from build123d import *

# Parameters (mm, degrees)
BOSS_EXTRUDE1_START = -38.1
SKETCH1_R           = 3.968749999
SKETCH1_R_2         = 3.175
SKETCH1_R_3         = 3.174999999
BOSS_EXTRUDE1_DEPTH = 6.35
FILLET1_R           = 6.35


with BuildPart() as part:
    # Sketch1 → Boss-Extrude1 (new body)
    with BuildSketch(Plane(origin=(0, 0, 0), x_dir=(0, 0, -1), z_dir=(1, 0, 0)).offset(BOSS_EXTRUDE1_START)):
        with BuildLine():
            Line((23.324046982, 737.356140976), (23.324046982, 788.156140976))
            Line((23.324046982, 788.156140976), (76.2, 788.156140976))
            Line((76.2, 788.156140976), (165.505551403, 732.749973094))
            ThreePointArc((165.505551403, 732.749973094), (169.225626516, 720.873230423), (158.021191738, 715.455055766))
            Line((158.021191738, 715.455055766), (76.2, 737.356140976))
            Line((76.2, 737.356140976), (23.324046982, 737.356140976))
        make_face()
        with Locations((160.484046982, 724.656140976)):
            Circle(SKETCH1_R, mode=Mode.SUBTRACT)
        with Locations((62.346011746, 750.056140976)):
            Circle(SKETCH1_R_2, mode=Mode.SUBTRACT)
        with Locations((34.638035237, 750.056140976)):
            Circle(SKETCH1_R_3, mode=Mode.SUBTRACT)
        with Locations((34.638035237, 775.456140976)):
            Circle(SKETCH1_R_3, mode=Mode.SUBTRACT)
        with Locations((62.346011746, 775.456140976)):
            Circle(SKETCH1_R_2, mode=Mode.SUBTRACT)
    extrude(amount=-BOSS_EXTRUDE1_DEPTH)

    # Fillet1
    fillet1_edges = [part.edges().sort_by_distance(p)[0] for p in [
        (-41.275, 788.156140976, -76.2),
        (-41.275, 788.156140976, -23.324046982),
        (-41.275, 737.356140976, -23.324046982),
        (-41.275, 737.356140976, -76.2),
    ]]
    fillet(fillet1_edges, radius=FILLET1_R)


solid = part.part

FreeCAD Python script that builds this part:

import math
import FreeCAD as App
import Part
import Sketcher
Q = App.Units.Quantity


def edges_at(feature, points):
    """Names of the edges that pass closest to the given points."""
    edges = feature.Shape.Edges
    near = lambda p: min(range(len(edges)), key=lambda i: edges[i].distToShape(Part.Vertex(*p))[0])
    return sorted({f"Edge{near(p) + 1}" for p in points})

doc = App.newDocument("Part")
params = doc.addObject("Spreadsheet::Sheet", "Params")
for row, (alias, value) in enumerate([
    ("sketch1_diameter", "0.25 in"),
    ("sketch1_width", "2 in"),
    ("sketch1_diameter2", "0.3125 in"),
    ("sketch1_radius", "0.375 in"),
    ("pad1_length", "0.25 in"),
    ("fillet_radius", "0.25 in"),
], start=1):
    params.set(f"A{row}", alias)
    params.set(f"B{row}", "=" + value)
    params.setAlias(f"B{row}", alias)

body = doc.addObject("PartDesign::Body", "Body")

# Sketch on YZ plane
sketch1 = doc.addObject("Sketcher::SketchObject", "Sketch")
body.addObject(sketch1)
sketch1.AttachmentSupport = (doc.YZ_Plane, [""])
sketch1.MapMode = "FlatFace"
sketch1.AttachmentOffset = App.Placement(App.Vector(0, 0, -1.5 * 25.4), App.Rotation())
sketch1.addGeometry(Part.LineSegment(App.Vector(788.2, -23.3, 0), App.Vector(737.4, -23.3, 0)), False)
sketch1.addGeometry(Part.LineSegment(App.Vector(737.4, -23.3, 0), App.Vector(737.4, -76.2, 0)), False)
sketch1.addGeometry(Part.LineSegment(App.Vector(737.4, -76.2, 0), App.Vector(715.5, -158, 0)), False)
sketch1.addGeometry(Part.ArcOfCircle(Part.Circle(App.Vector(724.7, -160.5, 0), App.Vector(0, 0, 1), 9.5), math.radians(165), math.radians(328)), False)
sketch1.addGeometry(Part.LineSegment(App.Vector(732.7, -165.5, 0), App.Vector(788.2, -76.2, 0)), False)
sketch1.addGeometry(Part.LineSegment(App.Vector(788.2, -76.2, 0), App.Vector(788.2, -23.3, 0)), False)
sketch1.addGeometry(Part.Circle(App.Vector(724.7, -160.5, 0), App.Vector(0, 0, 1), 4), False)
sketch1.addGeometry(Part.Circle(App.Vector(750.1, -62.3, 0), App.Vector(0, 0, 1), 3.2), False)
sketch1.addGeometry(Part.Circle(App.Vector(750.1, -34.6, 0), App.Vector(0, 0, 1), 3.2), False)
sketch1.addGeometry(Part.Circle(App.Vector(775.5, -62.3, 0), App.Vector(0, 0, 1), 3.2), False)
sketch1.addGeometry(Part.Circle(App.Vector(775.5, -34.6, 0), App.Vector(0, 0, 1), 3.2), False)
sketch1.addConstraint(Sketcher.Constraint("Coincident", 0, 2, 1, 1))
sketch1.addConstraint(Sketcher.Constraint("Coincident", 1, 2, 2, 1))
sketch1.addConstraint(Sketcher.Constraint("Tangent", 2, 2, 3, 1))
sketch1.addConstraint(Sketcher.Constraint("Tangent", 3, 2, 4, 1))
sketch1.addConstraint(Sketcher.Constraint("Coincident", 4, 2, 5, 1))
sketch1.addConstraint(Sketcher.Constraint("Coincident", 5, 2, 0, 1))
sketch1.addConstraint(Sketcher.Constraint("Horizontal", 0))
sketch1.addConstraint(Sketcher.Constraint("Vertical", 1))
sketch1.addConstraint(Sketcher.Constraint("Vertical", 5))
sketch1.addConstraint(Sketcher.Constraint("Coincident", 6, 3, 3, 3))
sketch1.addConstraint(Sketcher.Constraint("Equal", 7, 8))
sketch1.addConstraint(Sketcher.Constraint("Equal", 8, 9))
sketch1.addConstraint(Sketcher.Constraint("Equal", 9, 10))
sketch1.addConstraint(Sketcher.Constraint("Horizontal", 7, 3, 9, 3))
sketch1.addConstraint(Sketcher.Constraint("Horizontal", 8, 3, 10, 3))
sketch1.addConstraint(Sketcher.Constraint("Horizontal", 1, 2, 4, 2))
sketch1.addConstraint(Sketcher.Constraint("Vertical", 7, 3, 8, 3))
sketch1.addConstraint(Sketcher.Constraint("Vertical", 9, 3, 10, 3))
sketch1.addConstraint(Sketcher.Constraint("Diameter", 7, Q("0.25 in")))
sketch1.addConstraint(Sketcher.Constraint("DistanceX", 0, 2, 0, 1, Q("2 in")))
sketch1.addConstraint(Sketcher.Constraint("Diameter", 6, Q("0.3125 in")))
sketch1.addConstraint(Sketcher.Constraint("DistanceY", 1, 2, -1, 1, Q("3 in")))
sketch1.addConstraint(Sketcher.Constraint("Radius", 3, Q("0.375 in")))
sketch1.addConstraint(Sketcher.Constraint("DistanceX", 3, 3, 7, 3, Q("1 in")))
sketch1.addConstraint(Sketcher.Constraint("DistanceX", 7, 3, 9, 3, Q("1 in")))
sketch1.addConstraint(Sketcher.Constraint("DistanceX", 0, 2, 8, 3, Q("0.5 in")))
sketch1.addConstraint(Sketcher.Constraint("DistanceY", 3, 3, 0, 2, Q("5.4 in")))
sketch1.addConstraint(Sketcher.Constraint("Distance", 4, 105.096741))
sketch1.addConstraint(Sketcher.Constraint("DistanceX", -1, 1, 3, 3, 724.656141))
sketch1.addConstraint(Sketcher.Constraint("DistanceY", 7, 3, -1, 1, 62.346012))
sketch1.addConstraint(Sketcher.Constraint("DistanceY", 3, 3, 8, 3, 125.846012))
sketch1.setExpression("Constraints[18]", "Params.sketch1_diameter")
sketch1.setExpression("Constraints[19]", "Params.sketch1_width")
sketch1.setExpression("Constraints[20]", "Params.sketch1_diameter2")
sketch1.setExpression("Constraints[22]", "Params.sketch1_radius")
pad1 = doc.addObject("PartDesign::Pad", "Pad")
body.addObject(pad1)
pad1.Profile = sketch1
pad1.setExpression("Length", "Params.pad1_length")
pad1.Reversed = True
doc.recompute()

fillet = doc.addObject("PartDesign::Fillet", "Fillet")
body.addObject(fillet)
fillet.Base = (pad1, edges_at(pad1, [
    (-41.275, 788.156, -76.2),
    (-41.275, 788.156, -23.324),
    (-41.275, 737.356, -23.324),
    (-41.275, 737.356, -76.2),
]))
fillet.setExpression("Radius", "Params.fillet_radius")

doc.recompute()
